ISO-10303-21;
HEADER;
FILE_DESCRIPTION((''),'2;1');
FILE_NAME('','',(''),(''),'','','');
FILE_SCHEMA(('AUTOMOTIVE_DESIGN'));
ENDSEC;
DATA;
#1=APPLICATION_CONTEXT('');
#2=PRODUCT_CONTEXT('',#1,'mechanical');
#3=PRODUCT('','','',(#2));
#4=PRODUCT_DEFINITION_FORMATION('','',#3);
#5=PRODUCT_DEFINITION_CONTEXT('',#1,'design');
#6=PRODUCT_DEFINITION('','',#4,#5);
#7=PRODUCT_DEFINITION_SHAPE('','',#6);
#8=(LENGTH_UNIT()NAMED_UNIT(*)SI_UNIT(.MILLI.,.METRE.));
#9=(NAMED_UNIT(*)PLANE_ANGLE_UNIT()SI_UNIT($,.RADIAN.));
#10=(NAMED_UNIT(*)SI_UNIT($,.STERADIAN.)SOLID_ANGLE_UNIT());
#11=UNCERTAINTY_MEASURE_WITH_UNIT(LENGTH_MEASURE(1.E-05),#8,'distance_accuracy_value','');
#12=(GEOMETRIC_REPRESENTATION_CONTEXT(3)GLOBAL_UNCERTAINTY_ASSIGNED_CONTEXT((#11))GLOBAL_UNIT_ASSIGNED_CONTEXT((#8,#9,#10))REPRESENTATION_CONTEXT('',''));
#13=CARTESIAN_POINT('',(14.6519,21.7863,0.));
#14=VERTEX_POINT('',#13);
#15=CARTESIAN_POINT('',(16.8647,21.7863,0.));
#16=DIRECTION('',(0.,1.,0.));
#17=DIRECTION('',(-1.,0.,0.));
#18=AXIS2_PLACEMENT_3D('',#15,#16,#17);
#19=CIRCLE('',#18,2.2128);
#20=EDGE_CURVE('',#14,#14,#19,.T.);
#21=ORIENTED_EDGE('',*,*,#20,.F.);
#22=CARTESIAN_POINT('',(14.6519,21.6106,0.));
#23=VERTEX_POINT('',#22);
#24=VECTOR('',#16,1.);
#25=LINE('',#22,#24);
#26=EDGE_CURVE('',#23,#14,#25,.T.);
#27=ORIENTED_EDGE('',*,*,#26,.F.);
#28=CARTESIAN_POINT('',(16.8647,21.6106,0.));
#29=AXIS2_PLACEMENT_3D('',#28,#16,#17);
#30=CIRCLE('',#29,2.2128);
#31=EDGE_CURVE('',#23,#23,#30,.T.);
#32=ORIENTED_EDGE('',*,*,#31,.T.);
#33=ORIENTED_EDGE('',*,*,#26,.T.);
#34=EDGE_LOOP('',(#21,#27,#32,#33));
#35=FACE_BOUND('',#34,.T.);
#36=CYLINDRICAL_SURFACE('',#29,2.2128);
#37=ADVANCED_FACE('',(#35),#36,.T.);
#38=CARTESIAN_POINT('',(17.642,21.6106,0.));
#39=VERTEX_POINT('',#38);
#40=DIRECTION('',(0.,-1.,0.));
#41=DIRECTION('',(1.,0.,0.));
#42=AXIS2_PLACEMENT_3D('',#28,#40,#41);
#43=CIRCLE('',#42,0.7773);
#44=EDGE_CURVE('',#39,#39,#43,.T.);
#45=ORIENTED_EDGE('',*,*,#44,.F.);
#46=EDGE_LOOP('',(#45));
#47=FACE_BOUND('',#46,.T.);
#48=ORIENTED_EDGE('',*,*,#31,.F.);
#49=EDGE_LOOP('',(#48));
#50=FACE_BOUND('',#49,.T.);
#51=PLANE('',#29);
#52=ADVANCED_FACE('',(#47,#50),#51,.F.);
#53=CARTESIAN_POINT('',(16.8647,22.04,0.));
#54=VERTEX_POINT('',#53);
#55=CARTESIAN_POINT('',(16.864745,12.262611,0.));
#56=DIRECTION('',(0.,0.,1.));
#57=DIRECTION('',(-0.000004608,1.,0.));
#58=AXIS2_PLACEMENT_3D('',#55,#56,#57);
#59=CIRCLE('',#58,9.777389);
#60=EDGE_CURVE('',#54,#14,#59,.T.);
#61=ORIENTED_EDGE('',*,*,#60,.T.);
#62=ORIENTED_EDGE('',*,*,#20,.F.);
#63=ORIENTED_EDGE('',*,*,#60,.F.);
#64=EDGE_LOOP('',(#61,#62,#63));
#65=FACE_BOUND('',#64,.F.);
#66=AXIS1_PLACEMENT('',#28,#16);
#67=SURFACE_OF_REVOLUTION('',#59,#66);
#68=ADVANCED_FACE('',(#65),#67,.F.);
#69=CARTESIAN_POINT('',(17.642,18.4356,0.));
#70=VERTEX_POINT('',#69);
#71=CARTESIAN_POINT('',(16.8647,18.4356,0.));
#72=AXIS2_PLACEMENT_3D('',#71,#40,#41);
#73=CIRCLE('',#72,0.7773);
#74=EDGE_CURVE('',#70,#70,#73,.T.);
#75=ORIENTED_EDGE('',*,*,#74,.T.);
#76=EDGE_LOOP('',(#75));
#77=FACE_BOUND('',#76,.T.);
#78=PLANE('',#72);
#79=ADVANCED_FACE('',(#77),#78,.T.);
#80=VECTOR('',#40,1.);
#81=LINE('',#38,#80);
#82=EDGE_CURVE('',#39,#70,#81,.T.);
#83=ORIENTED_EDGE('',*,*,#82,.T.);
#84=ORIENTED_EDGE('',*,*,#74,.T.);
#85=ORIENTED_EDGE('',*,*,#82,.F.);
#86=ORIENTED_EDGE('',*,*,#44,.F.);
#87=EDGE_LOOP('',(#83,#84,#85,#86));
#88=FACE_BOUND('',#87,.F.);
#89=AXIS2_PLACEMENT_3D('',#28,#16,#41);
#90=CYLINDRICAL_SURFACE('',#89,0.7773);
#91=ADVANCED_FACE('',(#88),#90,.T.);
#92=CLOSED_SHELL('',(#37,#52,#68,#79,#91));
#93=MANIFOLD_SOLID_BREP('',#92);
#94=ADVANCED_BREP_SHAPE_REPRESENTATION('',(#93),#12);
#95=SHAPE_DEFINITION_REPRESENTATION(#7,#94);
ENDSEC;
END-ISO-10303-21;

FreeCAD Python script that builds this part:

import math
import FreeCAD as App
import Part
import Sketcher
Q = App.Units.Quantity

doc = App.newDocument("Part")
body = doc.addObject("PartDesign::Body", "Body")

# Sketch on XY plane
sketch1 = body.newObject("Sketcher::SketchObject", "Sketch")
sketch1.AttachmentSupport = (doc.getObject("XY_Plane"), [""])
sketch1.MapMode = "FlatFace"
sketch1.addGeometry([
    Part.LineSegment(App.Vector(14.65, 21.61, 0), App.Vector(16.86, 21.61, 0)),
    Part.LineSegment(App.Vector(16.86, 21.61, 0), App.Vector(16.86, 22.04, 0)),
    Part.ArcOfCircle(Part.Circle(App.Vector(16.86, 12.26, 0), App.Vector(0, 0, 1), 9.78), math.radians(90), math.radians(103.08)),
    Part.LineSegment(App.Vector(14.65, 21.79, 0), App.Vector(14.65, 21.61, 0)),
], False)
sketch1.addGeometry(Part.LineSegment(App.Vector(16.86, 12.26, 0), App.Vector(16.86, 22.04, 0)), True)  # axis
sketch1.addConstraint([
    Sketcher.Constraint("Coincident", 0, 2, 1, 1),
    Sketcher.Constraint("Coincident", 1, 2, 2, 1),
    Sketcher.Constraint("Coincident", 2, 2, 3, 1),
    Sketcher.Constraint("Coincident", 3, 2, 0, 1),
    Sketcher.Constraint("Horizontal", 0),
    Sketcher.Constraint("Vertical", 1),
    Sketcher.Constraint("Vertical", 3),
    Sketcher.Constraint("Vertical", 4),
    Sketcher.Constraint("Coincident", 4, 1, 2, 3),
    Sketcher.Constraint("Coincident", 4, 2, 1, 2),
    Sketcher.Constraint("Radius", 2, Q("0.3849 in")),
    Sketcher.Constraint("DistanceY", 2, 2, 1, 2, Q("0.01 in")),
    Sketcher.Constraint("DistanceY", 1, 1, 1, 2, Q("0.0169 in")),
    Sketcher.Constraint("DistanceY", -1, 1, 2, 3, Q("0.4828 in")),
    Sketcher.Constraint("DistanceX", -1, 1, 2, 3, 16.8647),
])
revolution = body.newObject("PartDesign::Revolution", "Revolution")
revolution.Profile = sketch1
revolution.ReferenceAxis = (sketch1, ["Axis0"])
revolution.Angle = 360

# Sketch on XZ plane
sketch2 = body.newObject("Sketcher::SketchObject", "Sketch001")
sketch2.AttachmentSupport = (doc.getObject("XZ_Plane"), [""])
sketch2.MapMode = "FlatFace"
sketch2.AttachmentOffset = App.Placement(App.Vector(0, 0, -0.850811 * 25.4), App.Rotation())
sketch2.addGeometry(Part.Circle(App.Vector(16.9, 0, 0), App.Vector(0, 0, 1), 0.8), False)
sketch2.addConstraint([
    Sketcher.Constraint("PointOnObject", 0, 3, -1),
    Sketcher.Constraint("Diameter", 0, Q("0.0612 in")),
    Sketcher.Constraint("DistanceX", -1, 1, 0, 3, 16.8647),
])
pad1 = body.newObject("PartDesign::Pad", "Pad")
pad1.Profile = sketch2
pad1.Length = Q("0.125 in")

doc.recompute()
